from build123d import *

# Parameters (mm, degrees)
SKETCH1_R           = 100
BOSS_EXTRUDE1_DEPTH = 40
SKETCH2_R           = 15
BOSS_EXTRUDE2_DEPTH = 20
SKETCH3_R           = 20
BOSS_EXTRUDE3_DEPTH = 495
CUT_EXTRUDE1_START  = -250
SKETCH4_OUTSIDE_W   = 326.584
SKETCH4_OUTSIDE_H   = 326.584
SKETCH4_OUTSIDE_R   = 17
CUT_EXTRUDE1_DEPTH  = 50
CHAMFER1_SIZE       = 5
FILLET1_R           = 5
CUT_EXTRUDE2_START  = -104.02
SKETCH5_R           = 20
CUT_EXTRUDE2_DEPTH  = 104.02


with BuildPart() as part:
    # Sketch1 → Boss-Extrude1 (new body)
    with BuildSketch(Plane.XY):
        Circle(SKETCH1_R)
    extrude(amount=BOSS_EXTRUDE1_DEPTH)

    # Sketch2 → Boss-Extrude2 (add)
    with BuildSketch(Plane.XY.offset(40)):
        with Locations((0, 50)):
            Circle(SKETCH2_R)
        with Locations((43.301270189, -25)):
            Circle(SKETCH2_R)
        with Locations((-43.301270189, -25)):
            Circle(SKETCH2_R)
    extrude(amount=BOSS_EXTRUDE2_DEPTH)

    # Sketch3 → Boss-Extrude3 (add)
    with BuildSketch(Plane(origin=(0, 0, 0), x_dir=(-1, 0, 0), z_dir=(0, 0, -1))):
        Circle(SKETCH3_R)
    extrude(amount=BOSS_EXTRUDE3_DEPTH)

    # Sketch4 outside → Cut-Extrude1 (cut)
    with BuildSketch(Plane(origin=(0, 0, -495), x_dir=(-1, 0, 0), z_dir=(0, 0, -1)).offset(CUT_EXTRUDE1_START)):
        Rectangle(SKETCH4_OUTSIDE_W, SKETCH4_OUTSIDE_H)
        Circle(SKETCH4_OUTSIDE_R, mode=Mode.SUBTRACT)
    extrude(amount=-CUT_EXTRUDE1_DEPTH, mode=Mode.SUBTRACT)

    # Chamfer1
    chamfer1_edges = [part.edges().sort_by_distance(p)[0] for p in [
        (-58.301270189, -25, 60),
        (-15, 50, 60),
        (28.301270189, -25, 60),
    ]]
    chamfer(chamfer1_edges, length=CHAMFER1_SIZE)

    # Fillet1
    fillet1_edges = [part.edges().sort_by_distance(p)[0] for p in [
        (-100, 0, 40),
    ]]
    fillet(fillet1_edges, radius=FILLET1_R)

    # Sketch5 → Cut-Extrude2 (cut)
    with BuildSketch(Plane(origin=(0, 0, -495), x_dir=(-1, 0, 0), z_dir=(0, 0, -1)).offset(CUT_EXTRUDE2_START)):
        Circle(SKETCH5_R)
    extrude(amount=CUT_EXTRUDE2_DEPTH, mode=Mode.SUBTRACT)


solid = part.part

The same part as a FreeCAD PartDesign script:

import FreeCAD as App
import Part
import Sketcher

V = App.Vector
Q = App.Units.Quantity


def edges_at(feature, points):
    """Names of the edges that pass closest to the given points."""
    edges = feature.Shape.Edges
    near = lambda p: min(range(len(edges)), key=lambda i: edges[i].distToShape(Part.Vertex(*p))[0])
    return sorted({f"Edge{near(p) + 1}" for p in points})

doc = App.newDocument("Part")
params = doc.addObject("Spreadsheet::Sheet", "Params")
for row, (alias, value) in enumerate([
    ("sketch1_diameter", "200 mm"),
    ("pad1_length", "40 mm"),
    ("sketch2_diameter", "30 mm"),
    ("pad2_length", "20 mm"),
    ("sketch3_diameter", "40 mm"),
    ("pad3_length", "495 mm"),
    ("sketch4_diameter", "34 mm"),
    ("pocket1_length", "50 mm"),
    ("chamfer_size", "5 mm"),
    ("fillet_radius", "5 mm"),
    ("sketch5_diameter", "40 mm"),
    ("pocket2_length", "104.02 mm"),
], start=1):
    params.set(f"A{row}", alias)
    params.set(f"B{row}", "=" + value)
    params.setAlias(f"B{row}", alias)

body = doc.addObject("PartDesign::Body", "Body")

# Sketch on XY plane
sketch1 = body.newObject("Sketcher::SketchObject", "Sketch")
sketch1.AttachmentSupport = (doc.getObject("XY_Plane"), [""])
sketch1.MapMode = "FlatFace"
sketch1.addGeometry(Part.Circle(V(0, 0, 0), V(0, 0, 1), 100), False)
sketch1.addConstraint(Sketcher.Constraint("Coincident", 0, 3, -1, 1))
sketch1.addConstraint(Sketcher.Constraint("Diameter", 0, Q("200 mm")))
sketch1.setExpression("Constraints[1]", "Params.sketch1_diameter")
pad1 = body.newObject("PartDesign::Pad", "Pad")
pad1.Profile = sketch1
pad1.setExpression("Length", "Params.pad1_length")

# Sketch on XY plane
sketch2 = body.newObject("Sketcher::SketchObject", "Sketch001")
sketch2.AttachmentSupport = (doc.getObject("XY_Plane"), [""])
sketch2.MapMode = "FlatFace"
sketch2.AttachmentOffset = App.Placement(V(0, 0, 40), App.Rotation())
sketch2.addGeometry(Part.Circle(V(0, 50, 0), V(0, 0, 1), 15), False)
sketch2.addGeometry(Part.Circle(V(43.30127, -25, 0), V(0, 0, 1), 15), False)
sketch2.addGeometry(Part.Circle(V(-43.30127, -25, 0), V(0, 0, 1), 15), False)
sketch2.addConstraint(Sketcher.Constraint("Equal", 0, 1))
sketch2.addConstraint(Sketcher.Constraint("Equal", 1, 2))
sketch2.addConstraint(Sketcher.Constraint("Symmetric", 1, 3, 2, 3, -2))
sketch2.addConstraint(Sketcher.Constraint("PointOnObject", 0, 3, -2))
sketch2.addConstraint(Sketcher.Constraint("Diameter", 0, Q("30 mm")))
sketch2.addConstraint(Sketcher.Constraint("DistanceY", -1, 1, 0, 3, Q("50 mm")))
sketch2.addConstraint(Sketcher.Constraint("DistanceY", 1, 3, -1, 1, Q("25 mm")))
sketch2.addConstraint(Sketcher.Constraint("DistanceX", -1, 1, 1, 3, Q("43.30127 mm")))
sketch2.setExpression("Constraints[4]", "Params.sketch2_diameter")
pad2 = body.newObject("PartDesign::Pad", "Pad001")
pad2.Profile = sketch2
pad2.setExpression("Length", "Params.pad2_length")

# Sketch on XY plane
sketch3 = body.newObject("Sketcher::SketchObject", "Sketch002")
sketch3.AttachmentSupport = (doc.getObject("XY_Plane"), [""])
sketch3.MapMode = "FlatFace"
sketch3.addGeometry(Part.Circle(V(0, 0, 0), V(0, 0, 1), 20), False)
sketch3.addConstraint(Sketcher.Constraint("Coincident", 0, 3, -1, 1))
sketch3.addConstraint(Sketcher.Constraint("Diameter", 0, Q("40 mm")))
sketch3.setExpression("Constraints[1]", "Params.sketch3_diameter")
pad3 = body.newObject("PartDesign::Pad", "Pad002")
pad3.Profile = sketch3
pad3.setExpression("Length", "Params.pad3_length")
pad3.Reversed = True

# Sketch on XY plane
sketch4 = body.newObject("Sketcher::SketchObject", "Sketch003")
sketch4.AttachmentSupport = (doc.getObject("XY_Plane"), [""])
sketch4.MapMode = "FlatFace"
sketch4.AttachmentOffset = App.Placement(V(0, 0, -245), App.Rotation())
sketch4.addGeometry(Part.LineSegment(V(163.292, 163.292, 0), V(163.292, -163.292, 0)), False)
sketch4.addGeometry(Part.LineSegment(V(163.292, -163.292, 0), V(-163.292, -163.292, 0)), False)
sketch4.addGeometry(Part.LineSegment(V(-163.292, -163.292, 0), V(-163.292, 163.292, 0)), False)
sketch4.addGeometry(Part.LineSegment(V(-163.292, 163.292, 0), V(163.292, 163.292, 0)), False)
sketch4.addGeometry(Part.Circle(V(0, 0, 0), V(0, 0, 1), 17), False)
sketch4.addConstraint(Sketcher.Constraint("Coincident", 0, 2, 1, 1))
sketch4.addConstraint(Sketcher.Constraint("Coincident", 1, 2, 2, 1))
sketch4.addConstraint(Sketcher.Constraint("Coincident", 2, 2, 3, 1))
sketch4.addConstraint(Sketcher.Constraint("Coincident", 3, 2, 0, 1))
sketch4.addConstraint(Sketcher.Constraint("Vertical", 0))
sketch4.addConstraint(Sketcher.Constraint("Horizontal", 1))
sketch4.addConstraint(Sketcher.Constraint("Vertical", 2))
sketch4.addConstraint(Sketcher.Constraint("Horizontal", 3))
sketch4.addConstraint(Sketcher.Constraint("Coincident", 4, 3, -1, 1))
sketch4.addConstraint(Sketcher.Constraint("Symmetric", 0, 2, 2, 2, -1, 1))
sketch4.addConstraint(Sketcher.Constraint("Equal", 3, 0))
sketch4.addConstraint(Sketcher.Constraint("Diameter", 4, Q("34 mm")))
sketch4.addConstraint(Sketcher.Constraint("DistanceX", 1, 2, 1, 1, Q("326.584 mm")))
sketch4.setExpression("Constraints[11]", "Params.sketch4_diameter")
pocket1 = body.newObject("PartDesign::Pocket", "Pocket")
pocket1.Profile = sketch4
pocket1.setExpression("Length", "Params.pocket1_length")
pocket1.Reversed = True
doc.recompute()

chamfer = body.newObject("PartDesign::Chamfer", "Chamfer")
chamfer.Base = (pocket1, edges_at(pocket1, [(-58.301, -25, 60), (-15, 50, 60), (28.301, -25, 60)]))
chamfer.setExpression("Size", "Params.chamfer_size")
doc.recompute()

fillet = body.newObject("PartDesign::Fillet", "Fillet")
fillet.Base = (chamfer, edges_at(chamfer, [(-100, 0, 40)]))
fillet.setExpression("Radius", "Params.fillet_radius")

# Sketch on XY plane
sketch5 = body.newObject("Sketcher::SketchObject", "Sketch004")
sketch5.AttachmentSupport = (doc.getObject("XY_Plane"), [""])
sketch5.MapMode = "FlatFace"
sketch5.AttachmentOffset = App.Placement(V(0, 0, -390.98), App.Rotation())
sketch5.addGeometry(Part.Circle(V(0, 0, 0), V(0, 0, 1), 20), False)
sketch5.addConstraint(Sketcher.Constraint("Coincident", 0, 3, -1, 1))
sketch5.addConstraint(Sketcher.Constraint("Diameter", 0, Q("40 mm")))
sketch5.setExpression("Constraints[1]", "Params.sketch5_diameter")
pocket2 = body.newObject("PartDesign::Pocket", "Pocket001")
pocket2.Profile = sketch5
pocket2.setExpression("Length", "Params.pocket2_length")

doc.recompute()
